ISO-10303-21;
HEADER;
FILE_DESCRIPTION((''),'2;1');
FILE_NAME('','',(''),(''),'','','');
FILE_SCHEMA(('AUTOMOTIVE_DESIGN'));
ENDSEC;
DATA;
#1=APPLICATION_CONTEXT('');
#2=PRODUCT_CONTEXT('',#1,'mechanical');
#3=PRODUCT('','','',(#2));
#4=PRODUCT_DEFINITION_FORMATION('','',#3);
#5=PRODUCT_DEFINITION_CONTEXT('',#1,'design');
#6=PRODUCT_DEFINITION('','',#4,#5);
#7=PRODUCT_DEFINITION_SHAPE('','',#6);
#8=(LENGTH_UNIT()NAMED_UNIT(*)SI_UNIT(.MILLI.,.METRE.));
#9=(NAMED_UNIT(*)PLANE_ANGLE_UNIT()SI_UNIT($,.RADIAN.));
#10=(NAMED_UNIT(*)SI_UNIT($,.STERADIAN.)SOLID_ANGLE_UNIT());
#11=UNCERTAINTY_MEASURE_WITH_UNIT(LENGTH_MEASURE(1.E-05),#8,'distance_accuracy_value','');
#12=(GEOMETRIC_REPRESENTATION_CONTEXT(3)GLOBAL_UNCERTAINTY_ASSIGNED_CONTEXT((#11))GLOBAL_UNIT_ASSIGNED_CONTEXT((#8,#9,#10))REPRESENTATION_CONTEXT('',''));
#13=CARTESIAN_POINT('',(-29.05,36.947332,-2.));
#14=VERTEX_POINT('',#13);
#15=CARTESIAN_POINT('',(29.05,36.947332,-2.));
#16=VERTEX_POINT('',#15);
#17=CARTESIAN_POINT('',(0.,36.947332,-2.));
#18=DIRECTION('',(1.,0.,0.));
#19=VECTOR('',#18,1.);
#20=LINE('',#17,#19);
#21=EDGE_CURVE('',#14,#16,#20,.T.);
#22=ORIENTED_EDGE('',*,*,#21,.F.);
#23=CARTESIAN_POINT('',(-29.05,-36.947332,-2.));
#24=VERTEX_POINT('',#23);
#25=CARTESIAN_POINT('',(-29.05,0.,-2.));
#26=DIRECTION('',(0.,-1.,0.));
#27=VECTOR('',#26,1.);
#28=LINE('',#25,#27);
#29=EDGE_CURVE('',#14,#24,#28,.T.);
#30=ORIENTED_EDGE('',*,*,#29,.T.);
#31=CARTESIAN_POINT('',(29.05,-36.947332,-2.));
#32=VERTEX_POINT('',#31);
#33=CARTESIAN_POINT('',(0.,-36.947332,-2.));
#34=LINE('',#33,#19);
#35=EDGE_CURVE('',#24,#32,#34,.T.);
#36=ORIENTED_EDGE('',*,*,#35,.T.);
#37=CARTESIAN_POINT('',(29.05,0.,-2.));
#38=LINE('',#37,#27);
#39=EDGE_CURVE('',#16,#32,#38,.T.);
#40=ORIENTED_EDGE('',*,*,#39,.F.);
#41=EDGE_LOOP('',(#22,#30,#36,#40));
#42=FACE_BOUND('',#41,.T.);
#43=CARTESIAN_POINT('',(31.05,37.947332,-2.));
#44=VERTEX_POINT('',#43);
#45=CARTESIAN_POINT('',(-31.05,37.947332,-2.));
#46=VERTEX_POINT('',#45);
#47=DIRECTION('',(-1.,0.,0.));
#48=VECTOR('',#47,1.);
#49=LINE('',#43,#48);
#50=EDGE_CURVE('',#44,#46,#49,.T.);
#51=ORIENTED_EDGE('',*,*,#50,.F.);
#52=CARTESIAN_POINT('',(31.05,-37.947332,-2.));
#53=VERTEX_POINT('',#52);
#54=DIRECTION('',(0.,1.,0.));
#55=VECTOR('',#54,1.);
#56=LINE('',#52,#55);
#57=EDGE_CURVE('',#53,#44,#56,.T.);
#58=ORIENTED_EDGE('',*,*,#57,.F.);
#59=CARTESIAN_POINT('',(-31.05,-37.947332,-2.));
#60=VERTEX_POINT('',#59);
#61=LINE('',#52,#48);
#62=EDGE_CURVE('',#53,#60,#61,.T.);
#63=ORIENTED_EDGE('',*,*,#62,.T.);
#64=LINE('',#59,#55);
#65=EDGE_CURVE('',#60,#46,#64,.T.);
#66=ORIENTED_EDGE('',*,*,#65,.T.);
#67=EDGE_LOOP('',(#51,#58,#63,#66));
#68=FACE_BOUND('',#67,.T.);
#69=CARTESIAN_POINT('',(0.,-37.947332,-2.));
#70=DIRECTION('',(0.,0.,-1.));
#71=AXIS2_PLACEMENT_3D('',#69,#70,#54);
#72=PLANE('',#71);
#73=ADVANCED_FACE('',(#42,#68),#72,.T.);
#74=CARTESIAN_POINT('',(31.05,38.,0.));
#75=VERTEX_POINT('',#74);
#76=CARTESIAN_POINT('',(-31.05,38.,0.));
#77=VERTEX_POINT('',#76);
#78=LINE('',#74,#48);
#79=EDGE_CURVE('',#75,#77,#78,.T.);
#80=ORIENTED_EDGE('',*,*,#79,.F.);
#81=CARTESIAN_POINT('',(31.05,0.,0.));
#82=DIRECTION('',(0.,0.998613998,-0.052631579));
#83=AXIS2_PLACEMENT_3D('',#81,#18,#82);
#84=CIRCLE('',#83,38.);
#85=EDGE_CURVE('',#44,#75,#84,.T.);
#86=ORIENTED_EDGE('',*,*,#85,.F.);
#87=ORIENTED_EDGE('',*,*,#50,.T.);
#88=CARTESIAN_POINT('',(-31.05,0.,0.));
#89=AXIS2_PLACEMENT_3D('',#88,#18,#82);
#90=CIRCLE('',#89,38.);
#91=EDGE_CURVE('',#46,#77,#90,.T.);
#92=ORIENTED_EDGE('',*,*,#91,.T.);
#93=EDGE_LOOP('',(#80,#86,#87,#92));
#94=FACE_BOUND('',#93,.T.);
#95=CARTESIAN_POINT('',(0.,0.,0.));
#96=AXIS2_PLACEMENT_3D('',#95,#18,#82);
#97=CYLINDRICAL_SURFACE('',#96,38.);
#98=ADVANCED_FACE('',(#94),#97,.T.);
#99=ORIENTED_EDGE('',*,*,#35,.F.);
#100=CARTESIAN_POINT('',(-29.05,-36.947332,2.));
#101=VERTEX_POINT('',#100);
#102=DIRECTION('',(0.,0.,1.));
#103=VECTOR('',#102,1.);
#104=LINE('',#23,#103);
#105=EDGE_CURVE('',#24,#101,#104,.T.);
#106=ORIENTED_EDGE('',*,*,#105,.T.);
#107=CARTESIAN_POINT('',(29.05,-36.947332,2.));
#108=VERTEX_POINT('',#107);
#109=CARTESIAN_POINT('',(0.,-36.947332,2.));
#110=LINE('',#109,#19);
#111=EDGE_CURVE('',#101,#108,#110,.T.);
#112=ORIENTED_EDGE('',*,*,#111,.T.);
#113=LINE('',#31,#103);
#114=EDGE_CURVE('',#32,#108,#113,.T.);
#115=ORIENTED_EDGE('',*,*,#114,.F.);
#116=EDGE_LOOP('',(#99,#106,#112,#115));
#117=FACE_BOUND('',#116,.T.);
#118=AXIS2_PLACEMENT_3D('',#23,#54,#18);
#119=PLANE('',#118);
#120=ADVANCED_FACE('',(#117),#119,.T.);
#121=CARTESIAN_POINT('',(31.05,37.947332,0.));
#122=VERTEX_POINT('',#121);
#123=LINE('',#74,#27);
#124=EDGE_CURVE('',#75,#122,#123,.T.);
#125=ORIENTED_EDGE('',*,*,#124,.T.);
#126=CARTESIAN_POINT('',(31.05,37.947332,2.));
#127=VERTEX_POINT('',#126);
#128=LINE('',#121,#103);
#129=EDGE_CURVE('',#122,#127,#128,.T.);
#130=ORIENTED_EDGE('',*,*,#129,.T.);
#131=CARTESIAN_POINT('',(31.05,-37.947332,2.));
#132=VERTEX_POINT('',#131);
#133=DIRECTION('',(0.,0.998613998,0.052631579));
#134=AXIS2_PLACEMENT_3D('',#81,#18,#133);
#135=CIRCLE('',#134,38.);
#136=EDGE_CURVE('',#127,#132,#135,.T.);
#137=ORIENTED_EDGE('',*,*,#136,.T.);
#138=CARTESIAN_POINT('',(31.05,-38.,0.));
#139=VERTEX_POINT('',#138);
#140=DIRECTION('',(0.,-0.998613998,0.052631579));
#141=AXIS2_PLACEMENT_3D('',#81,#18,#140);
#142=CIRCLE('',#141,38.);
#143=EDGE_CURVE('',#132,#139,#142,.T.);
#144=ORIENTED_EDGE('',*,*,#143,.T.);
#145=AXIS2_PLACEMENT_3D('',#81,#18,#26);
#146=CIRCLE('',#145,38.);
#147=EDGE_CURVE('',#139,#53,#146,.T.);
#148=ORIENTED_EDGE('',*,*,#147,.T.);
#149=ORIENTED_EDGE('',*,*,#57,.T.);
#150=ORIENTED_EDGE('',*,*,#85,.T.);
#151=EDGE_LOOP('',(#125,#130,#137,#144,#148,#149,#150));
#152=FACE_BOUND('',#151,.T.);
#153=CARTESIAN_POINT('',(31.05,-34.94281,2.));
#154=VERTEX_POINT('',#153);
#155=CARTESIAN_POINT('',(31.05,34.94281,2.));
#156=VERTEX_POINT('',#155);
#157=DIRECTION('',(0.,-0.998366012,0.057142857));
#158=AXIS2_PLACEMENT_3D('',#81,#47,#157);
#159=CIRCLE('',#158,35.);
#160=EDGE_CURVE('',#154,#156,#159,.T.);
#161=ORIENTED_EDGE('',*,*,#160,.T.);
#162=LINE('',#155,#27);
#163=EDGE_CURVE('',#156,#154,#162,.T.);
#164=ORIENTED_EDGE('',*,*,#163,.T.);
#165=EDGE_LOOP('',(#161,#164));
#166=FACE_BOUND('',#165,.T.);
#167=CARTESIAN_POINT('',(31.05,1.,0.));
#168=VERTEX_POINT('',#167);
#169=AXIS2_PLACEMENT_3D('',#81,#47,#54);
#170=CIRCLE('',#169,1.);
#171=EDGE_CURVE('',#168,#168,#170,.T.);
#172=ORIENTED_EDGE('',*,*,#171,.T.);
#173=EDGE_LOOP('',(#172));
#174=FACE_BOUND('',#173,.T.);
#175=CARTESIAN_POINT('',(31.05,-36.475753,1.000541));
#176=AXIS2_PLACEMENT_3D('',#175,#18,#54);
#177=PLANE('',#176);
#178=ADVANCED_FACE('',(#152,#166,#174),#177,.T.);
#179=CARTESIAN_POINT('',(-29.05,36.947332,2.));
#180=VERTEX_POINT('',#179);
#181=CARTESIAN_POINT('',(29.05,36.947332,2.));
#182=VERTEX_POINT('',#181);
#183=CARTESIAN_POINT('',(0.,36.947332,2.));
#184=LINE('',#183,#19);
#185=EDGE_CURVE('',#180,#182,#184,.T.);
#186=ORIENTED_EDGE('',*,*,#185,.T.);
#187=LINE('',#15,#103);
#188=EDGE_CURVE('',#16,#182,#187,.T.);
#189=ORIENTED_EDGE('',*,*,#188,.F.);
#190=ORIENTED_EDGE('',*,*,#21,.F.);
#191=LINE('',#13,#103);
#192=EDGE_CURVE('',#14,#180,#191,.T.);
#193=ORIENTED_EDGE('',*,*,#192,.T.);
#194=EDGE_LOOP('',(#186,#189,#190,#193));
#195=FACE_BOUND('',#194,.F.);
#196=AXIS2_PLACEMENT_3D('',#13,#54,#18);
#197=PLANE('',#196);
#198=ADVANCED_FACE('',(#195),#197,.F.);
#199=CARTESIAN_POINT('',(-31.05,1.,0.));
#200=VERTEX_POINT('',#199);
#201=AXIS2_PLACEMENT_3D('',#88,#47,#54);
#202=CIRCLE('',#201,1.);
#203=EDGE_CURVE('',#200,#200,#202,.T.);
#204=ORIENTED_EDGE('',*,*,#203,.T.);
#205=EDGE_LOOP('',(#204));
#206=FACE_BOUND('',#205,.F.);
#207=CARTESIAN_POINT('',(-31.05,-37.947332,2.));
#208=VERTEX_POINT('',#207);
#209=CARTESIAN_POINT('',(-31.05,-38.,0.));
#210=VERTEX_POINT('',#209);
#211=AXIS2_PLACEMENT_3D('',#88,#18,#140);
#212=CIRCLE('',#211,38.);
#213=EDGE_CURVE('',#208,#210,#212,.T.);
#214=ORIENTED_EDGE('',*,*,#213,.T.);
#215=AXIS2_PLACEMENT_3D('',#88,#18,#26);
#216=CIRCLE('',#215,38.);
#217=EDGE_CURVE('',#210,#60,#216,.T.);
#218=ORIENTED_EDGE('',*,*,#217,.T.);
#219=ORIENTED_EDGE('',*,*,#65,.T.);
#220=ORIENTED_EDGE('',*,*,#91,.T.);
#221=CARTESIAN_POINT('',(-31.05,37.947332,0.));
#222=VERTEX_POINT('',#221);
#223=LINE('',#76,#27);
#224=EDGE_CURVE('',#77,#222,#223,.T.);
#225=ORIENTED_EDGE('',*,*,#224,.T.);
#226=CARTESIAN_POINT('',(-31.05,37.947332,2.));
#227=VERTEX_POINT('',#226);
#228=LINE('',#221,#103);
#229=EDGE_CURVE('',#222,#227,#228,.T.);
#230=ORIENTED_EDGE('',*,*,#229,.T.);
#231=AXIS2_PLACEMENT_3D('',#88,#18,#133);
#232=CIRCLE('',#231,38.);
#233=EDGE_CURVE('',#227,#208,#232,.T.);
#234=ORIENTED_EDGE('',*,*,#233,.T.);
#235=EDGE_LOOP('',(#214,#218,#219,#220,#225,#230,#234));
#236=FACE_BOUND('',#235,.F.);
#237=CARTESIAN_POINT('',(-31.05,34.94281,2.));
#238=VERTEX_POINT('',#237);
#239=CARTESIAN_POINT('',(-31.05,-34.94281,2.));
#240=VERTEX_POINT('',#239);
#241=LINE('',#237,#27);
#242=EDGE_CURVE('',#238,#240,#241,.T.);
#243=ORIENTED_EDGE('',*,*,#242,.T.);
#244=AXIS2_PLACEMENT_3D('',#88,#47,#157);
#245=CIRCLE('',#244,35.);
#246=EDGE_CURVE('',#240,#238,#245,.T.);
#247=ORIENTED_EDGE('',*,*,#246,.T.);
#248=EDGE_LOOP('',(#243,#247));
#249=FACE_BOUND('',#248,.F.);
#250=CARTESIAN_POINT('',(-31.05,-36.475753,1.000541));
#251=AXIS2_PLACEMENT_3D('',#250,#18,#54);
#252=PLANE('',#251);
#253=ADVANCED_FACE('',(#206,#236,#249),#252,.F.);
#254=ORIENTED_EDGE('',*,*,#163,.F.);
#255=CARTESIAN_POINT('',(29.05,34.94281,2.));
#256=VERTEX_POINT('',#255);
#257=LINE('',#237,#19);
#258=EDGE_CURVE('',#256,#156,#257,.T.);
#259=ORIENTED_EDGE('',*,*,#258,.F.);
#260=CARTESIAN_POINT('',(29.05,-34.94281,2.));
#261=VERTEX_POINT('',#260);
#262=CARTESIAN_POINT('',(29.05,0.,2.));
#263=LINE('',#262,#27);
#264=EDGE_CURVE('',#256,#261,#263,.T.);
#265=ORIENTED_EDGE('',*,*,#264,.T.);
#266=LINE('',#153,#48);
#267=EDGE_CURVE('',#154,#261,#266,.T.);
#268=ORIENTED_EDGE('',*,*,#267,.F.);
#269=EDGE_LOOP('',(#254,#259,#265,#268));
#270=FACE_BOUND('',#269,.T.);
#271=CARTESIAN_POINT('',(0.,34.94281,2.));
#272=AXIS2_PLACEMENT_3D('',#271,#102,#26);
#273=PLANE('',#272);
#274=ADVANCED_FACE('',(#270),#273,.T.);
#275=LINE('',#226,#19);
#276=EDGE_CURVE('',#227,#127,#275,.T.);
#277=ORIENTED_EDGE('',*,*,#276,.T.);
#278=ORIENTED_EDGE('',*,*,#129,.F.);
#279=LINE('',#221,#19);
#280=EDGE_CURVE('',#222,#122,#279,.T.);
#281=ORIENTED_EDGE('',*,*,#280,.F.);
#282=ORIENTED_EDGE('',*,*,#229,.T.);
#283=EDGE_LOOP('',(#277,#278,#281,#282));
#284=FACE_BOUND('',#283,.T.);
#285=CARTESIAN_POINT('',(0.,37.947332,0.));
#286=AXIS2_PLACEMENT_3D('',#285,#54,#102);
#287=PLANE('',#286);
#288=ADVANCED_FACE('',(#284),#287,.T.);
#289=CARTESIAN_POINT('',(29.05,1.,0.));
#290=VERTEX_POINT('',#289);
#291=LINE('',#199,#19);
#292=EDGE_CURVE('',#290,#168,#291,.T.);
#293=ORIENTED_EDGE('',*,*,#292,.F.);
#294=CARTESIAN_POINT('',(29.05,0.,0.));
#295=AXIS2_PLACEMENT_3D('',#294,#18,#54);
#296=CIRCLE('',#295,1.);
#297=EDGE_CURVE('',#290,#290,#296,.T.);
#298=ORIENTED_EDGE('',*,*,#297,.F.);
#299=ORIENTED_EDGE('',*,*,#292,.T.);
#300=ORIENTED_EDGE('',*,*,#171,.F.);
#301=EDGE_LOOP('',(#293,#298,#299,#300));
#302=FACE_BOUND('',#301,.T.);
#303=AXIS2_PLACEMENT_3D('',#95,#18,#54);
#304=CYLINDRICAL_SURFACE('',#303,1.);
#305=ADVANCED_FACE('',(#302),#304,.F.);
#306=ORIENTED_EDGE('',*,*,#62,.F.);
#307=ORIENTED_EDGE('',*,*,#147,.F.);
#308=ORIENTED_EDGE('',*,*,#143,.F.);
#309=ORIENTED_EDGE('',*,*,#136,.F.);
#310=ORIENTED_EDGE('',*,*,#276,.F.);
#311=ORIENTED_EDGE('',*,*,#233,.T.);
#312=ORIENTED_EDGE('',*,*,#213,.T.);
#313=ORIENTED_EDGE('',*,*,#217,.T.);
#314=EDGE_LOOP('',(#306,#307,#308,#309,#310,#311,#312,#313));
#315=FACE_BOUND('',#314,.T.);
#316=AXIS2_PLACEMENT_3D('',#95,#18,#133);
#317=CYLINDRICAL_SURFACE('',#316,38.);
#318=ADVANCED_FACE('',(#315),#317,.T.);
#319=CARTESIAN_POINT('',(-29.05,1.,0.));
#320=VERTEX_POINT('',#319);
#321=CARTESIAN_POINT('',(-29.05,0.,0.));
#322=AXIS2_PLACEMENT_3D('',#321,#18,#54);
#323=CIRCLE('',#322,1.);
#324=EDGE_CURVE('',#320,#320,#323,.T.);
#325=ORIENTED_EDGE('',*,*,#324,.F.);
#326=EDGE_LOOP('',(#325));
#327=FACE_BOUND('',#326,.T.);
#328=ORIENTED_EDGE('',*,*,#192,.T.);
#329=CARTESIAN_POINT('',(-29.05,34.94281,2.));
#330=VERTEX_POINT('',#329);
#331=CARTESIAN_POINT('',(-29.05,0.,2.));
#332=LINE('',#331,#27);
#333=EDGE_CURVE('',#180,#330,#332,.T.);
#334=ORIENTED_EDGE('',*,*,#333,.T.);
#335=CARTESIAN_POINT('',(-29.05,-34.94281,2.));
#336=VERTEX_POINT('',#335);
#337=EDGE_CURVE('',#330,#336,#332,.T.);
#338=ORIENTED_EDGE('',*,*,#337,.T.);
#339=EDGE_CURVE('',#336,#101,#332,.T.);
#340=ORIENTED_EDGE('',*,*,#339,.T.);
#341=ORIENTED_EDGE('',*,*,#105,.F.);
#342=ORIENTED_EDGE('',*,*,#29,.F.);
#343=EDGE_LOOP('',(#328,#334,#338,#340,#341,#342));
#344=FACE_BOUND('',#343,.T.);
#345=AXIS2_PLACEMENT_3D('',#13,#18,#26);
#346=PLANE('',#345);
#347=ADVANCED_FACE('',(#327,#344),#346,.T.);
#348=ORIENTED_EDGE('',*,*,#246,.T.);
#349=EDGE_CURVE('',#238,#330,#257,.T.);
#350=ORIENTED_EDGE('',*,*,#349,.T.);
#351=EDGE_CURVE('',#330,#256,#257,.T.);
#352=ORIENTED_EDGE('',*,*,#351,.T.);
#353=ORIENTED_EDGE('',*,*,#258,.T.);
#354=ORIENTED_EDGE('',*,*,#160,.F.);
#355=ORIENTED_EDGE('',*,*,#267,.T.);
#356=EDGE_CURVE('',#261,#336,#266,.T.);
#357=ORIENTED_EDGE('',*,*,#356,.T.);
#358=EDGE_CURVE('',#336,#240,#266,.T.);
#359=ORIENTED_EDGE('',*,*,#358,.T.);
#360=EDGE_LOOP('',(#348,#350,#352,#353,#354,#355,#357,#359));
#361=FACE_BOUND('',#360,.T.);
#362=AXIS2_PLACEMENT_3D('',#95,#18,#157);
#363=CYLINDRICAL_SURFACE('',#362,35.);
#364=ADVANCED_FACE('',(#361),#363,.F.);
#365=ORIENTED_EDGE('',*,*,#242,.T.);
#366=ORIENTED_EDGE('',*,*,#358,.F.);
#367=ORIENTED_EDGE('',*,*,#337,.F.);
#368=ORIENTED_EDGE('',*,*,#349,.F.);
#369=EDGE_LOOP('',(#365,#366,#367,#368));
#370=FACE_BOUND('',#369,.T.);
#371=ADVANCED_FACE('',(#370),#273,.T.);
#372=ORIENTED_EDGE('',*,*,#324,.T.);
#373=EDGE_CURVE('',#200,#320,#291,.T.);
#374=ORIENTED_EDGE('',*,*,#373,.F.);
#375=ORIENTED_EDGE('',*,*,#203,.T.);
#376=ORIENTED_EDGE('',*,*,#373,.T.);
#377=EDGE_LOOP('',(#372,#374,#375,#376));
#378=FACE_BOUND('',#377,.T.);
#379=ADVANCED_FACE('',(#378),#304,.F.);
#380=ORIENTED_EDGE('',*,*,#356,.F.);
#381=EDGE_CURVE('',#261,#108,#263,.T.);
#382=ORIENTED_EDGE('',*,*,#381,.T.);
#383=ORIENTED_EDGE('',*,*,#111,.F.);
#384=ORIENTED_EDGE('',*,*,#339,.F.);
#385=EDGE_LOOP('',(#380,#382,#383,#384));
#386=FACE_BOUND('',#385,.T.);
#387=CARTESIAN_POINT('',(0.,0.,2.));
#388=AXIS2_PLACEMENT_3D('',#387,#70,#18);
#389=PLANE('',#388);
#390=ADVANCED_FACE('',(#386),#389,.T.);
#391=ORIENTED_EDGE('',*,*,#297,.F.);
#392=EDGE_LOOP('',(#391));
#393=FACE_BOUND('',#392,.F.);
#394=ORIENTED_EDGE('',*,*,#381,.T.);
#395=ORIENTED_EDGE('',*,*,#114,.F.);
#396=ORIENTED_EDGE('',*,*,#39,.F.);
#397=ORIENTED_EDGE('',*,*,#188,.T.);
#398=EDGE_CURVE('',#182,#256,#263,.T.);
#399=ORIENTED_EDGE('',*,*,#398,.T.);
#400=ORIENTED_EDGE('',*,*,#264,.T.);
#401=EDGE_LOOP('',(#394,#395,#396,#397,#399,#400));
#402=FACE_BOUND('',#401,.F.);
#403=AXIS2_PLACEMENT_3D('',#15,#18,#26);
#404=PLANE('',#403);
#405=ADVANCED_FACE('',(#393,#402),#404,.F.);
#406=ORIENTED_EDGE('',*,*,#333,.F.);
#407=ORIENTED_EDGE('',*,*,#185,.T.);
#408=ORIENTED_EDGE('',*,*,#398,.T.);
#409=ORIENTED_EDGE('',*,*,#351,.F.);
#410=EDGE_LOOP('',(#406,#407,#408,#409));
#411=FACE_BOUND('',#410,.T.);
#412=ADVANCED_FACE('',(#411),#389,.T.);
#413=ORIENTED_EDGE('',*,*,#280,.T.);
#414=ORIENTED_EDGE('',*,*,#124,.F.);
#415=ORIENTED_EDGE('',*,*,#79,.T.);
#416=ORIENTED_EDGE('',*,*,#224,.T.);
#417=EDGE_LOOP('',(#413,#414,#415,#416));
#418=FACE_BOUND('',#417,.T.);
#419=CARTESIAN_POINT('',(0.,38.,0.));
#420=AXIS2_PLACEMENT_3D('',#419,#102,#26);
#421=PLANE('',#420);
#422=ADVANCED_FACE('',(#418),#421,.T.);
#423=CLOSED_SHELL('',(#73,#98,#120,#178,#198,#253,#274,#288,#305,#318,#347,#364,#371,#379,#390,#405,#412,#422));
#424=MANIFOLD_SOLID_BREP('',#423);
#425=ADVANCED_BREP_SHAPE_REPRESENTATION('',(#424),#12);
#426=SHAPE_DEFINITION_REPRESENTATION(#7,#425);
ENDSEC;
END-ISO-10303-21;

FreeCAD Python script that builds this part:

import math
import FreeCAD as App
import Part
import Sketcher
from FreeCAD import Vector


def add_polygon(sketch, points):
    """Adds a closed chain of lines whose ends are joined by coincident constraints."""
    first, n = sketch.GeometryCount, len(points)
    for a, b in zip(points, points[1:] + points[:1]):
        sketch.addGeometry(Part.LineSegment(App.Vector(*a, 0), App.Vector(*b, 0)), False)
    for i in range(n):
        sketch.addConstraint(Sketcher.Constraint("Coincident", first + i, 2, first + (i + 1) % n, 1))

doc = App.newDocument("Part")
body = doc.addObject("PartDesign::Body", "Body")

# Sketch on YZ plane
sketch1 = body.newObject("Sketcher::SketchObject", "Sketch")
sketch1.AttachmentSupport = (doc.getObject("YZ_Plane"), [""])
sketch1.MapMode = "FlatFace"
sketch1.addGeometry([
    Part.LineSegment(Vector(38, 0, 0), Vector(37.95, 0, 0)),  # 0
    Part.LineSegment(Vector(37.95, 0, 0), Vector(37.95, 2, 0)),  # 1
    Part.ArcOfCircle(Part.Circle(Vector(0, 0, 0), Vector(0, 0, 1), 38), math.radians(3), math.radians(177)),  # 2
    Part.ArcOfCircle(Part.Circle(Vector(0, 0, 0), Vector(0, 0, 1), 38), math.radians(176.98), math.radians(180)),  # 3
    Part.ArcOfCircle(Part.Circle(Vector(0, 0, 0), Vector(0, 0, 1), 38), math.radians(-180), math.radians(-176.98)),  # 4
    Part.LineSegment(Vector(-37.95, -2, 0), Vector(37.95, -2, 0)),  # 5
    Part.ArcOfCircle(Part.Circle(Vector(0, 0, 0), Vector(0, 0, 1), 38), math.radians(-3.02), math.radians(0)),  # 6
    Part.Circle(Vector(0, 0, 0), Vector(0, 0, 1), 1),  # 7
    Part.ArcOfCircle(Part.Circle(Vector(0, 0, 0), Vector(0, 0, 1), 35), math.radians(3), math.radians(177)),  # 8
    Part.LineSegment(Vector(34.94, 2, 0), Vector(-34.94, 2, 0)),  # 9
], False)
sketch1.addConstraint([
    Sketcher.Constraint("Coincident", 0, 2, 1, 1),
    Sketcher.Constraint("Coincident", 1, 2, 2, 1),
    Sketcher.Constraint("Tangent", 2, 2, 3, 1),
    Sketcher.Constraint("Tangent", 3, 2, 4, 1),
    Sketcher.Constraint("Coincident", 4, 2, 5, 1),
    Sketcher.Constraint("Coincident", 5, 2, 6, 1),
    Sketcher.Constraint("Coincident", 6, 2, 0, 1),
    Sketcher.Constraint("Coincident", 8, 1, 9, 1),
    Sketcher.Constraint("Coincident", 9, 2, 8, 2),
    Sketcher.Constraint("Horizontal", 0),
    Sketcher.Constraint("Vertical", 1),
    Sketcher.Constraint("Horizontal", 5),
    Sketcher.Constraint("Horizontal", 9),
    Sketcher.Constraint("Coincident", 2, 3, -1, 1),
    Sketcher.Constraint("Coincident", 4, 3, -1, 1),
    Sketcher.Constraint("Coincident", 6, 3, -1, 1),
    Sketcher.Constraint("Coincident", 7, 3, -1, 1),
    Sketcher.Constraint("Coincident", 8, 3, -1, 1),
    Sketcher.Constraint("Equal", 4, 6),
    Sketcher.Constraint("PointOnObject", 0, 2, -1),
    Sketcher.Constraint("PointOnObject", 3, 2, -1),
    Sketcher.Constraint("Horizontal", 1, 2, 2, 2),
    Sketcher.Constraint("Horizontal", 2, 2, 8, 1),
    Sketcher.Constraint("Vertical", 2, 2, 4, 2),
    Sketcher.Constraint("Diameter", 7, 2.0),
    Sketcher.Constraint("Radius", 2, 38.0),
    Sketcher.Constraint("Radius", 8, 35.0),
    Sketcher.Constraint("DistanceY", 1, 1, 1, 2, 2.0),
])
pad1 = body.newObject("PartDesign::Pad", "Pad")
pad1.Profile = sketch1
pad1.Length = 62.1
pad1.Midplane = True

# Sketch on XY plane
sketch2 = body.newObject("Sketcher::SketchObject", "Sketch001")
sketch2.AttachmentSupport = (doc.getObject("XY_Plane"), [""])
sketch2.MapMode = "FlatFace"
sketch2.AttachmentOffset = App.Placement(Vector(0, 0, -2), App.Rotation())
add_polygon(sketch2, [(-29, -37), (-29, 37), (29, 37), (29, -37)])  # lines 0-3
sketch2.addConstraint([
    Sketcher.Constraint("Vertical", 0),
    Sketcher.Constraint("Horizontal", 1),
    Sketcher.Constraint("Vertical", 2),
    Sketcher.Constraint("Horizontal", 3),
    Sketcher.Constraint("Symmetric", 0, 2, 2, 2, -1, 1),
    Sketcher.Constraint("DistanceX", 1, 1, 1, 2, 58.1),
    Sketcher.Constraint("DistanceY", 0, 1, 0, 2, 73.894664),
])
pocket1 = body.newObject("PartDesign::Pocket", "Pocket")
pocket1.Profile = sketch2
pocket1.Length = 4
pocket1.Reversed = True

doc.recompute()
